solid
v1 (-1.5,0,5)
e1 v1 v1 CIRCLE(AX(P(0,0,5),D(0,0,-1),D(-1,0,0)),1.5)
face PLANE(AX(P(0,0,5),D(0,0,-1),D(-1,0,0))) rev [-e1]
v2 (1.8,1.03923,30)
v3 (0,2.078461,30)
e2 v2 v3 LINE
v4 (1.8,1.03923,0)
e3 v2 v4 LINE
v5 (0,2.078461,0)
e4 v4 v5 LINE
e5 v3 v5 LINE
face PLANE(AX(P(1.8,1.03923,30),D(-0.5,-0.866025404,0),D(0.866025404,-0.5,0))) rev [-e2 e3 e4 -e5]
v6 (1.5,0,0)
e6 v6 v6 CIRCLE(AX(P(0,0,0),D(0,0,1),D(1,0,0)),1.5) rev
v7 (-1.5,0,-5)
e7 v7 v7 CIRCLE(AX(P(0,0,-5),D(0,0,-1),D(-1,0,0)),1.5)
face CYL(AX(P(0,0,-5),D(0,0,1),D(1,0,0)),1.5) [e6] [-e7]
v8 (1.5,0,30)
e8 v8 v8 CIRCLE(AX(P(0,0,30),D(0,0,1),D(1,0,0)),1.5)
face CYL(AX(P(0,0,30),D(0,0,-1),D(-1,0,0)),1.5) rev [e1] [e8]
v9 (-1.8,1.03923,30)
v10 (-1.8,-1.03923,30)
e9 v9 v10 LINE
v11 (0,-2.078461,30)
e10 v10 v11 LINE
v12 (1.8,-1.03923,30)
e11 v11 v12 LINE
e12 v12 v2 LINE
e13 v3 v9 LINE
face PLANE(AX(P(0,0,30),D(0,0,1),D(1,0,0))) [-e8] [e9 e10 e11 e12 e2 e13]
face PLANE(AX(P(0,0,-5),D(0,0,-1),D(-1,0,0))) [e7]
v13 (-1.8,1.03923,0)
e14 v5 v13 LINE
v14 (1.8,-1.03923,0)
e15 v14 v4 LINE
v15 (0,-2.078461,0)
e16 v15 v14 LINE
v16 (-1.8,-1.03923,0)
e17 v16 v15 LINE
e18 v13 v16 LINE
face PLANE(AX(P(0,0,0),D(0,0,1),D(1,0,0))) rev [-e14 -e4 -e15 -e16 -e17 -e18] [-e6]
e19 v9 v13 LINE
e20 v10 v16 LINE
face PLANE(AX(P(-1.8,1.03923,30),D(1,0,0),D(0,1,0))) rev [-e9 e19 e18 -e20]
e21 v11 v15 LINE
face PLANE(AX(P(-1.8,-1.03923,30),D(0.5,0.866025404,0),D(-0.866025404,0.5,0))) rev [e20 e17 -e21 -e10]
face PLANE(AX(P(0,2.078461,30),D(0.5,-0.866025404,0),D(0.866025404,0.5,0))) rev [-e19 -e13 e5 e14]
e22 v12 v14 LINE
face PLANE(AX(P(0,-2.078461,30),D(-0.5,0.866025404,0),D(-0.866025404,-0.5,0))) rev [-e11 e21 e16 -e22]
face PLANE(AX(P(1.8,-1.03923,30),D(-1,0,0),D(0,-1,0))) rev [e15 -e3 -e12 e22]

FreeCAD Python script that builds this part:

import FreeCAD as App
import Part
import Sketcher
Q = App.Units.Quantity


def add_polygon(sketch, points):
    """Adds a closed chain of lines whose ends are joined by coincident constraints."""
    first, n = sketch.GeometryCount, len(points)
    for a, b in zip(points, points[1:] + points[:1]):
        sketch.addGeometry(Part.LineSegment(App.Vector(*a, 0), App.Vector(*b, 0)), False)
    for i in range(n):
        sketch.addConstraint(Sketcher.Constraint("Coincident", first + i, 2, first + (i + 1) % n, 1))

doc = App.newDocument("Part")
params = doc.addObject("Spreadsheet::Sheet", "Params")
for row, (alias, value) in enumerate([
    ("sketch1_diameter", "3 mm"),
    ("pad1_length", "30 mm"),
    ("sketch2_diameter", "3 mm"),
    ("pad2_length", "10 mm"),
], start=1):
    params.set(f"A{row}", alias)
    params.set(f"B{row}", "=" + value)
    params.setAlias(f"B{row}", alias)

body = doc.addObject("PartDesign::Body", "Body")

# Sketch on XY plane
sketch1 = doc.addObject("Sketcher::SketchObject", "Sketch")
body.addObject(sketch1)
sketch1.AttachmentSupport = (doc.XY_Plane, [""])
sketch1.MapMode = "FlatFace"
add_polygon(sketch1, [(0, 2.078461), (-1.8, 1.03923), (-1.8, -1.03923), (0, -2.078461), (1.8, -1.03923), (1.8, 1.03923)])  # lines 0-5
sketch1.addGeometry(Part.Circle(App.Vector(0, 0, 0), App.Vector(0, 0, 1), 1.5), False)  # 6
sketch1.addConstraint([
    Sketcher.Constraint("Vertical", 1),
    Sketcher.Constraint("Vertical", 4),
    Sketcher.Constraint("Coincident", 6, 3, -1, 1),
    Sketcher.Constraint("Symmetric", 0, 2, 3, 2, -1, 1),
    Sketcher.Constraint("Symmetric", 2, 2, 5, 2, -1, 1),
    Sketcher.Constraint("PointOnObject", 2, 2, -2),
    Sketcher.Constraint("Parallel", 2, 5),
    Sketcher.Constraint("Horizontal", 1, 2, 3, 2),
    Sketcher.Constraint("Diameter", 6, 3.0),
    Sketcher.Constraint("Angle", 0, Q("-150 deg")),
    Sketcher.Constraint("DistanceX", 0, 2, -1, 1, 1.8),
    Sketcher.Constraint("DistanceY", 1, 2, 1, 1, 2.078461),
])
sketch1.setExpression("Constraints[14]", "Params.sketch1_diameter")
pad1 = doc.addObject("PartDesign::Pad", "Pad")
body.addObject(pad1)
pad1.Profile = sketch1
pad1.setExpression("Length", "Params.pad1_length")

# Sketch on XY plane
sketch2 = doc.addObject("Sketcher::SketchObject", "Sketch001")
body.addObject(sketch2)
sketch2.AttachmentSupport = (doc.XY_Plane, [""])
sketch2.MapMode = "FlatFace"
sketch2.addGeometry(Part.Circle(App.Vector(0, 0, 0), App.Vector(0, 0, 1), 1.5), False)
sketch2.addConstraint([
    Sketcher.Constraint("Coincident", 0, 3, -1, 1),
    Sketcher.Constraint("Diameter", 0, 3.0),
])
sketch2.setExpression("Constraints[1]", "Params.sketch2_diameter")
pad2 = doc.addObject("PartDesign::Pad", "Pad001")
body.addObject(pad2)
pad2.Profile = sketch2
pad2.setExpression("Length", "Params.pad2_length")
pad2.Midplane = True

doc.recompute()
